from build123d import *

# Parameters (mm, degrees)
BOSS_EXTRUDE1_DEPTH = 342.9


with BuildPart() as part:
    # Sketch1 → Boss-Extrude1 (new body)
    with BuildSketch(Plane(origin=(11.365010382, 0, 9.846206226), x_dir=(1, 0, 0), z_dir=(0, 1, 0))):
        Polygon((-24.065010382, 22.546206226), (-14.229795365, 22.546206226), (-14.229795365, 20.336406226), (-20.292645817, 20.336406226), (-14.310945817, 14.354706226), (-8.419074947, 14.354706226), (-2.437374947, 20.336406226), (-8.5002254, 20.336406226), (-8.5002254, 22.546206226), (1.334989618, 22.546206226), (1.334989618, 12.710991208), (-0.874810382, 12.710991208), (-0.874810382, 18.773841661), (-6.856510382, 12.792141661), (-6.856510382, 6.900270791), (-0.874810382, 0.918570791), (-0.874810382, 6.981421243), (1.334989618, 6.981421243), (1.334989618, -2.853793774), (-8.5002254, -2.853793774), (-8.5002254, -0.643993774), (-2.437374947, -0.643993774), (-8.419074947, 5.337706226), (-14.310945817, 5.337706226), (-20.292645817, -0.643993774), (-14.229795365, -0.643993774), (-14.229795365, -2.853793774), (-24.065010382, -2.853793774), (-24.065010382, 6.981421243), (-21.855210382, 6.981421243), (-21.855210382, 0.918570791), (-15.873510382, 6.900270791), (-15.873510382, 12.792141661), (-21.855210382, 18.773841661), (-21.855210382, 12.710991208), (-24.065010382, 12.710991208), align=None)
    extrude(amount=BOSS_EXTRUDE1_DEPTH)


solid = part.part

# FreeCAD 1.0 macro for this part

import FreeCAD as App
import Part
import Sketcher
Q = App.Units.Quantity

doc = App.newDocument("Part")
body = doc.addObject("PartDesign::Body", "Body")

sketch1 = body.newObject("Sketcher::SketchObject", "Sketch")
sketch1.AttachmentSupport = (doc.getObject("XZ_Plane"), [""])
sketch1.MapMode = "FlatFace"
sketch1.addGeometry([
    Part.LineSegment(App.Vector(-2.9, -12.7, 0), App.Vector(-12.7, -12.7, 0)),
    Part.LineSegment(App.Vector(-12.7, -12.7, 0), App.Vector(-12.7, -2.9, 0)),
    Part.LineSegment(App.Vector(-12.7, -2.9, 0), App.Vector(-10.5, -2.9, 0)),
    Part.LineSegment(App.Vector(-10.5, -2.9, 0), App.Vector(-10.5, -8.9, 0)),
    Part.LineSegment(App.Vector(-10.5, -8.9, 0), App.Vector(-4.5, -2.9, 0)),
    Part.LineSegment(App.Vector(-4.5, -2.9, 0), App.Vector(-4.5, 2.9, 0)),
    Part.LineSegment(App.Vector(-4.5, 2.9, 0), App.Vector(-10.5, 8.9, 0)),
    Part.LineSegment(App.Vector(-10.5, 8.9, 0), App.Vector(-10.5, 2.9, 0)),
    Part.LineSegment(App.Vector(-10.5, 2.9, 0), App.Vector(-12.7, 2.9, 0)),
    Part.LineSegment(App.Vector(-12.7, 2.9, 0), App.Vector(-12.7, 12.7, 0)),
    Part.LineSegment(App.Vector(-12.7, 12.7, 0), App.Vector(-2.9, 12.7, 0)),
    Part.LineSegment(App.Vector(-2.9, 12.7, 0), App.Vector(-2.9, 10.5, 0)),
    Part.LineSegment(App.Vector(-2.9, 10.5, 0), App.Vector(-8.9, 10.5, 0)),
    Part.LineSegment(App.Vector(-8.9, 10.5, 0), App.Vector(-2.9, 4.5, 0)),
    Part.LineSegment(App.Vector(-2.9, 4.5, 0), App.Vector(2.9, 4.5, 0)),
    Part.LineSegment(App.Vector(2.9, 4.5, 0), App.Vector(8.9, 10.5, 0)),
    Part.LineSegment(App.Vector(8.9, 10.5, 0), App.Vector(2.9, 10.5, 0)),
    Part.LineSegment(App.Vector(2.9, 10.5, 0), App.Vector(2.9, 12.7, 0)),
    Part.LineSegment(App.Vector(2.9, 12.7, 0), App.Vector(12.7, 12.7, 0)),
    Part.LineSegment(App.Vector(12.7, 12.7, 0), App.Vector(12.7, 2.9, 0)),
    Part.LineSegment(App.Vector(12.7, 2.9, 0), App.Vector(10.5, 2.9, 0)),
    Part.LineSegment(App.Vector(10.5, 2.9, 0), App.Vector(10.5, 8.9, 0)),
    Part.LineSegment(App.Vector(10.5, 8.9, 0), App.Vector(4.5, 2.9, 0)),
    Part.LineSegment(App.Vector(4.5, 2.9, 0), App.Vector(4.5, -2.9, 0)),
    Part.LineSegment(App.Vector(4.5, -2.9, 0), App.Vector(10.5, -8.9, 0)),
    Part.LineSegment(App.Vector(10.5, -8.9, 0), App.Vector(10.5, -2.9, 0)),
    Part.LineSegment(App.Vector(10.5, -2.9, 0), App.Vector(12.7, -2.9, 0)),
    Part.LineSegment(App.Vector(12.7, -2.9, 0), App.Vector(12.7, -12.7, 0)),
    Part.LineSegment(App.Vector(12.7, -12.7, 0), App.Vector(2.9, -12.7, 0)),
    Part.LineSegment(App.Vector(2.9, -12.7, 0), App.Vector(2.9, -10.5, 0)),
    Part.LineSegment(App.Vector(2.9, -10.5, 0), App.Vector(8.9, -10.5, 0)),
    Part.LineSegment(App.Vector(8.9, -10.5, 0), App.Vector(2.9, -4.5, 0)),
    Part.LineSegment(App.Vector(2.9, -4.5, 0), App.Vector(-2.9, -4.5, 0)),
    Part.LineSegment(App.Vector(-2.9, -4.5, 0), App.Vector(-8.9, -10.5, 0)),
    Part.LineSegment(App.Vector(-8.9, -10.5, 0), App.Vector(-2.9, -10.5, 0)),
    Part.LineSegment(App.Vector(-2.9, -10.5, 0), App.Vector(-2.9, -12.7, 0)),
], False)
sketch1.addConstraint([
    Sketcher.Constraint("Coincident", 0, 2, 1, 1),
    Sketcher.Constraint("Coincident", 1, 2, 2, 1),
    Sketcher.Constraint("Coincident", 2, 2, 3, 1),
    Sketcher.Constraint("Coincident", 3, 2, 4, 1),
    Sketcher.Constraint("Coincident", 4, 2, 5, 1),
    Sketcher.Constraint("Coincident", 5, 2, 6, 1),
    Sketcher.Constraint("Coincident", 6, 2, 7, 1),
    Sketcher.Constraint("Coincident", 7, 2, 8, 1),
    Sketcher.Constraint("Coincident", 8, 2, 9, 1),
    Sketcher.Constraint("Coincident", 9, 2, 10, 1),
    Sketcher.Constraint("Coincident", 10, 2, 11, 1),
    Sketcher.Constraint("Coincident", 11, 2, 12, 1),
    Sketcher.Constraint("Coincident", 12, 2, 13, 1),
    Sketcher.Constraint("Coincident", 13, 2, 14, 1),
    Sketcher.Constraint("Coincident", 14, 2, 15, 1),
    Sketcher.Constraint("Coincident", 15, 2, 16, 1),
    Sketcher.Constraint("Coincident", 16, 2, 17, 1),
    Sketcher.Constraint("Coincident", 17, 2, 18, 1),
    Sketcher.Constraint("Coincident", 18, 2, 19, 1),
    Sketcher.Constraint("Coincident", 19, 2, 20, 1),
    Sketcher.Constraint("Coincident", 20, 2, 21, 1),
    Sketcher.Constraint("Coincident", 21, 2, 22, 1),
    Sketcher.Constraint("Coincident", 22, 2, 23, 1),
    Sketcher.Constraint("Coincident", 23, 2, 24, 1),
    Sketcher.Constraint("Coincident", 24, 2, 25, 1),
    Sketcher.Constraint("Coincident", 25, 2, 26, 1),
    Sketcher.Constraint("Coincident", 26, 2, 27, 1),
    Sketcher.Constraint("Coincident", 27, 2, 28, 1),
    Sketcher.Constraint("Coincident", 28, 2, 29, 1),
    Sketcher.Constraint("Coincident", 29, 2, 30, 1),
    Sketcher.Constraint("Coincident", 30, 2, 31, 1),
    Sketcher.Constraint("Coincident", 31, 2, 32, 1),
    Sketcher.Constraint("Coincident", 32, 2, 33, 1),
    Sketcher.Constraint("Coincident", 33, 2, 34, 1),
    Sketcher.Constraint("Coincident", 34, 2, 35, 1),
    Sketcher.Constraint("Coincident", 35, 2, 0, 1),
    Sketcher.Constraint("Horizontal", 0),
    Sketcher.Constraint("Vertical", 1),
    Sketcher.Constraint("Horizontal", 2),
    Sketcher.Constraint("Vertical", 3),
    Sketcher.Constraint("Vertical", 5),
    Sketcher.Constraint("Vertical", 7),
    Sketcher.Constraint("Horizontal", 8),
    Sketcher.Constraint("Vertical", 9),
    Sketcher.Constraint("Horizontal", 10),
    Sketcher.Constraint("Vertical", 11),
    Sketcher.Constraint("Horizontal", 12),
    Sketcher.Constraint("Horizontal", 14),
    Sketcher.Constraint("Horizontal", 16),
    Sketcher.Constraint("Vertical", 17),
    Sketcher.Constraint("Horizontal", 18),
    Sketcher.Constraint("Vertical", 19),
    Sketcher.Constraint("Horizontal", 20),
    Sketcher.Constraint("Vertical", 21),
    Sketcher.Constraint("Vertical", 23),
    Sketcher.Constraint("Vertical", 25),
    Sketcher.Constraint("Horizontal", 26),
    Sketcher.Constraint("Vertical", 27),
    Sketcher.Constraint("Horizontal", 28),
    Sketcher.Constraint("Vertical", 29),
    Sketcher.Constraint("Horizontal", 30),
    Sketcher.Constraint("Horizontal", 32),
    Sketcher.Constraint("Horizontal", 34),
    Sketcher.Constraint("Vertical", 35),
    Sketcher.Constraint("Symmetric", 0, 2, 18, 2, -1, 1),
    Sketcher.Constraint("Symmetric", 2, 2, 20, 2, -1, 1),
    Sketcher.Constraint("Symmetric", 4, 2, 22, 2, -1, 1),
    Sketcher.Constraint("Symmetric", 6, 2, 24, 2, -1, 1),
    Sketcher.Constraint("Symmetric", 8, 2, 26, 2, -1, 1),
    Sketcher.Constraint("Symmetric", 10, 2, 28, 2, -1, 1),
    Sketcher.Constraint("Symmetric", 12, 2, 30, 2, -1, 1),
    Sketcher.Constraint("Symmetric", 13, 2, 31, 2, -1, 1),
    Sketcher.Constraint("Symmetric", 15, 2, 33, 2, -1, 1),
    Sketcher.Constraint("Symmetric", 12, 2, 15, 2, -2),
    Sketcher.Constraint("Symmetric", 10, 2, 17, 2, -2),
    Sketcher.Constraint("Symmetric", 8, 2, 19, 2, -2),
    Sketcher.Constraint("Symmetric", 6, 2, 21, 2, -2),
    Sketcher.Constraint("Perpendicular", 4, 6),
    Sketcher.Constraint("Parallel", 6, 13),
    Sketcher.Constraint("Perpendicular", 13, 15),
    Sketcher.Constraint("Parallel", 15, 22),
    Sketcher.Constraint("Perpendicular", 22, 24),
    Sketcher.Constraint("Perpendicular", 31, 33),
    Sketcher.Constraint("Horizontal", 5, 2, 22, 2),
    Sketcher.Constraint("Vertical", 11, 2, 34, 2),
    Sketcher.Constraint("Equal", 28, 1),
    Sketcher.Constraint("Equal", 34, 3),
    Sketcher.Constraint("Equal", 32, 5),
    Sketcher.Constraint("Equal", 26, 11),
    Sketcher.Constraint("Equal", 6, 13),
    Sketcher.Constraint("DistanceX", 0, 2, -1, 1, Q("0.5 in")),
    Sketcher.Constraint("DistanceX", 2, 1, 2, 2, Q("0.087 in")),
    Sketcher.Constraint("DistanceX", 4, 2, 23, 2, Q("0.355 in")),
    Sketcher.Constraint("DistanceX", 12, 2, 12, 1, 6.06285),
    Sketcher.Constraint("DistanceX", 14, 1, 14, 2, 5.891871),
])
pad1 = body.newObject("PartDesign::Pad", "Pad")
pad1.Profile = sketch1
pad1.Length = Q("13.5 in")
pad1.Reversed = True

doc.recompute()
